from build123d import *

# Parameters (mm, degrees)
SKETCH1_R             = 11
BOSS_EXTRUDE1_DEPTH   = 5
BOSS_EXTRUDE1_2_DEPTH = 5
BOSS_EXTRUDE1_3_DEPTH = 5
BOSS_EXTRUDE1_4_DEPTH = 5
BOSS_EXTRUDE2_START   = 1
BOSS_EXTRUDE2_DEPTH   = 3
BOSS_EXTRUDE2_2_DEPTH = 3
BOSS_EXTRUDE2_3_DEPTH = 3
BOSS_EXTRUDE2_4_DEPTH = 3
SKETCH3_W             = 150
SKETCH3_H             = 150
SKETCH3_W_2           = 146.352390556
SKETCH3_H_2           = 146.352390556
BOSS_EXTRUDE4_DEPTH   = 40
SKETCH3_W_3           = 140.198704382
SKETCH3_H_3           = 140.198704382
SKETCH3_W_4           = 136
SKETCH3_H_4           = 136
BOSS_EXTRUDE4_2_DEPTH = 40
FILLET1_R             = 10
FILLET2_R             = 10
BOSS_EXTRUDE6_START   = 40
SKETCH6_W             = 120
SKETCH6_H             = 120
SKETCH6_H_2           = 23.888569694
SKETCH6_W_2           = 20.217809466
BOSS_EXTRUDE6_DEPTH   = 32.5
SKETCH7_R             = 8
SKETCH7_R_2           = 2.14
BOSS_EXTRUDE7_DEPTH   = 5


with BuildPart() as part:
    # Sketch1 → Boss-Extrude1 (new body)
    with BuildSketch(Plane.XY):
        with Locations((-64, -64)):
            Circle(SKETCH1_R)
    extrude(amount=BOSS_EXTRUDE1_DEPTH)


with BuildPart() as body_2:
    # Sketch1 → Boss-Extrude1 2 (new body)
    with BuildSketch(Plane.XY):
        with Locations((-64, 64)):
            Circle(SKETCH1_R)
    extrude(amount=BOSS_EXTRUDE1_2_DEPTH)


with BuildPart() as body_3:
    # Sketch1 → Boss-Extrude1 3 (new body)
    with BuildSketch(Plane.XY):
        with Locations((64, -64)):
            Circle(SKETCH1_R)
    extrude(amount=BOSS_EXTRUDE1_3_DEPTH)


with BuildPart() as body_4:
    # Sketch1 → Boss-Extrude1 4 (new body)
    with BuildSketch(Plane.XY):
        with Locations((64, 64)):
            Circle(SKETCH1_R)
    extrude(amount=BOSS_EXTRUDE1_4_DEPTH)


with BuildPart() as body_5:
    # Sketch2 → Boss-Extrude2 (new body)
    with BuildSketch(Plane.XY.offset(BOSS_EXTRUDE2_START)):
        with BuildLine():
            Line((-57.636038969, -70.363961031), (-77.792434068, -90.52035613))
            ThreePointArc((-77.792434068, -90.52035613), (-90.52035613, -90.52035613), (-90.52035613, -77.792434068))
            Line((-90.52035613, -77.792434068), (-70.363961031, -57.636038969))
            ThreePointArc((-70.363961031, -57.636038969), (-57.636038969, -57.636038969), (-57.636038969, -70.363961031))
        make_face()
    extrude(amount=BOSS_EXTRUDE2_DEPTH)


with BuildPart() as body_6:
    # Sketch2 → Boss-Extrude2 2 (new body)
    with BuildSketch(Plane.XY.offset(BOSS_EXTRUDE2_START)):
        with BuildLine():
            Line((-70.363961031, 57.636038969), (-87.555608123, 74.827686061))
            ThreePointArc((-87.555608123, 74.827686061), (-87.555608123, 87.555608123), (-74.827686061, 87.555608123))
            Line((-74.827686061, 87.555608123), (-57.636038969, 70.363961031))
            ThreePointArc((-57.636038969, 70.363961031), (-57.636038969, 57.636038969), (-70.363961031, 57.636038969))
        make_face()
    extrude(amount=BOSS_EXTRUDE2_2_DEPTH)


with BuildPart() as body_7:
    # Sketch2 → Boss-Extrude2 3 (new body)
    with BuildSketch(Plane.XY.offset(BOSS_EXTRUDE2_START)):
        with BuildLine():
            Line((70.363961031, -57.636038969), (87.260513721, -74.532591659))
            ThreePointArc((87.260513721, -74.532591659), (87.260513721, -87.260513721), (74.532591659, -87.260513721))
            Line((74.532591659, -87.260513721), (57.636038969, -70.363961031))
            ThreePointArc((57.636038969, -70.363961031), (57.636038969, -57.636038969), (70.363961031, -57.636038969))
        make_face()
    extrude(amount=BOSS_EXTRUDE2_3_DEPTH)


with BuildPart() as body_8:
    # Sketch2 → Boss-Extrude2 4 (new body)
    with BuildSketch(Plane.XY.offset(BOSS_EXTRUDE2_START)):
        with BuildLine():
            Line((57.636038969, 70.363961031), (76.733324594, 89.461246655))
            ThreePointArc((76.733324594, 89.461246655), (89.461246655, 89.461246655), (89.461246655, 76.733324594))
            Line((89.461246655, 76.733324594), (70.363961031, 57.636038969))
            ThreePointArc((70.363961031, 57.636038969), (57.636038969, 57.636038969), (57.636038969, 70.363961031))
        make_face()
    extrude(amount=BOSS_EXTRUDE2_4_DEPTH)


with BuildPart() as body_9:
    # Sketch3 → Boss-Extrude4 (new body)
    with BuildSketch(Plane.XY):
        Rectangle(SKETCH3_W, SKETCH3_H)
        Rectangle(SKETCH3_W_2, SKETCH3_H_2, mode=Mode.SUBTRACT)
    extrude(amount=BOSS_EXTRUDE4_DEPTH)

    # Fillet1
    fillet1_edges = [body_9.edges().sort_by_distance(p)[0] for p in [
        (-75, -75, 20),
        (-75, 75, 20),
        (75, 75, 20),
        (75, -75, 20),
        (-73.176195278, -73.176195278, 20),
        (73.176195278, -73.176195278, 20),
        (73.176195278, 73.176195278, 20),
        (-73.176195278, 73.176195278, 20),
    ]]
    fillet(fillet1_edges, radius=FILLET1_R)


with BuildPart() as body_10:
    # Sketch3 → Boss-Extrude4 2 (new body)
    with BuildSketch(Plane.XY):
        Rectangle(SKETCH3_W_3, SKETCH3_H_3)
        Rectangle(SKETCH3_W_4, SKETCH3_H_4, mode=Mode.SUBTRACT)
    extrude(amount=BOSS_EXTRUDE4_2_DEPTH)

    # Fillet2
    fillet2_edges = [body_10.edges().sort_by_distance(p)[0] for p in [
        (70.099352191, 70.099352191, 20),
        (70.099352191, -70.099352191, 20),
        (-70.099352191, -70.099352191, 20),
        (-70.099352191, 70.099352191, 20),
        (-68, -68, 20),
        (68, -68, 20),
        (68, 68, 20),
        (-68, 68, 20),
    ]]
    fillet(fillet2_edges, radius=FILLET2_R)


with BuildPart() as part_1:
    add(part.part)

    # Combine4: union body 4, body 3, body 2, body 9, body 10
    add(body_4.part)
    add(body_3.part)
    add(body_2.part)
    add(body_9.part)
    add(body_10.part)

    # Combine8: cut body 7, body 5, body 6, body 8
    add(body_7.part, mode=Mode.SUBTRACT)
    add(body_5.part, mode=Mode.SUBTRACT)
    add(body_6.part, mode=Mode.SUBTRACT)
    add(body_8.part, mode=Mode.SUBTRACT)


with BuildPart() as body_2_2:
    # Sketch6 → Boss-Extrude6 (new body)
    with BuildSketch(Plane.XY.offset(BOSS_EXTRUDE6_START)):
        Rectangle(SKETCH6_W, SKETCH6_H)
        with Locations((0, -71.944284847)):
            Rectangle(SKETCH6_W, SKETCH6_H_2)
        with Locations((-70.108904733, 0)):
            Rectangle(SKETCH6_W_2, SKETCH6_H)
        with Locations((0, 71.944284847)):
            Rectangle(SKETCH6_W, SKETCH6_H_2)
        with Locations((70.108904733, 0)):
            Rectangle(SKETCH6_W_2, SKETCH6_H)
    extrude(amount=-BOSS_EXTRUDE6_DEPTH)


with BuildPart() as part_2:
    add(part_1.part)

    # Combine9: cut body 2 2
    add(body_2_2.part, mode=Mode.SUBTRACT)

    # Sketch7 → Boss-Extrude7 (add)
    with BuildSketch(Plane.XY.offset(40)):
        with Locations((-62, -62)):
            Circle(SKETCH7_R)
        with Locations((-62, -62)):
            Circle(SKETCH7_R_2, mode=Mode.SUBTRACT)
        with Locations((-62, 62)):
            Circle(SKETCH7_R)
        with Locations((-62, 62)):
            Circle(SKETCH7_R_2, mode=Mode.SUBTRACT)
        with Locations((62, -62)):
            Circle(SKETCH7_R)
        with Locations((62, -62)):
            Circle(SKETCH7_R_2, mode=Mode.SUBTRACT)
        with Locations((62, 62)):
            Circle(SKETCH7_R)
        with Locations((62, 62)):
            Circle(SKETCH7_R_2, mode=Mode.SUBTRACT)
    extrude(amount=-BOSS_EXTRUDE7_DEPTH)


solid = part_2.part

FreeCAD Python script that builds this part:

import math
import FreeCAD as App
import Part
import Sketcher
from FreeCAD import Vector
Q = App.Units.Quantity


def edges_at(feature, points):
    """Names of the edges that pass closest to the given points."""
    edges = feature.Shape.Edges
    near = lambda p: min(range(len(edges)), key=lambda i: edges[i].distToShape(Part.Vertex(*p))[0])
    return sorted({f"Edge{near(p) + 1}" for p in points})


def add_polygon(sketch, points):
    """Adds a closed chain of lines whose ends are joined by coincident constraints."""
    first, n = sketch.GeometryCount, len(points)
    for a, b in zip(points, points[1:] + points[:1]):
        sketch.addGeometry(Part.LineSegment(App.Vector(*a, 0), App.Vector(*b, 0)), False)
    for i in range(n):
        sketch.addConstraint(Sketcher.Constraint("Coincident", first + i, 2, first + (i + 1) % n, 1))

doc = App.newDocument("Part")
body = doc.addObject("PartDesign::Body", "Body")

sketch1 = doc.addObject("Sketcher::SketchObject", "Sketch")
body.addObject(sketch1)
sketch1.AttachmentSupport = (doc.XY_Plane, [""])
sketch1.MapMode = "FlatFace"
sketch1.addGeometry(Part.Circle(Vector(-64, -64, 0), Vector(0, 0, 1), 11), False)
sketch1.addConstraint(Sketcher.Constraint("Diameter", 0, 22.0))
sketch1.addConstraint(Sketcher.Constraint("DistanceX", 0, 3, -1, 1, 64.0))
sketch1.addConstraint(Sketcher.Constraint("DistanceY", 0, 3, -1, 1, 64.0))
pad1 = doc.addObject("PartDesign::Pad", "Pad")
body.addObject(pad1)
pad1.Profile = sketch1
pad1.Length = 5
body2 = doc.addObject("PartDesign::Body", "Body001")

sketch2 = doc.addObject("Sketcher::SketchObject", "Sketch001")
body2.addObject(sketch2)
sketch2.AttachmentSupport = (doc.getObject("XY_Plane001"), [""])
sketch2.MapMode = "FlatFace"
sketch2.addGeometry(Part.Circle(Vector(-64, 64, 0), Vector(0, 0, 1), 11), False)
sketch2.addConstraint(Sketcher.Constraint("Diameter", 0, 22.0))
sketch2.addConstraint(Sketcher.Constraint("DistanceX", 0, 3, -1, 1, 64.0))
sketch2.addConstraint(Sketcher.Constraint("DistanceY", -1, 1, 0, 3, 64.0))
pad2 = doc.addObject("PartDesign::Pad", "Pad001")
body2.addObject(pad2)
pad2.Profile = sketch2
pad2.Length = 5
body3 = doc.addObject("PartDesign::Body", "Body002")

sketch3 = doc.addObject("Sketcher::SketchObject", "Sketch002")
body3.addObject(sketch3)
sketch3.AttachmentSupport = (doc.getObject("XY_Plane002"), [""])
sketch3.MapMode = "FlatFace"
sketch3.addGeometry(Part.Circle(Vector(64, -64, 0), Vector(0, 0, 1), 11), False)
sketch3.addConstraint(Sketcher.Constraint("Diameter", 0, 22.0))
sketch3.addConstraint(Sketcher.Constraint("DistanceX", -1, 1, 0, 3, 64.0))
sketch3.addConstraint(Sketcher.Constraint("DistanceY", 0, 3, -1, 1, 64.0))
pad3 = doc.addObject("PartDesign::Pad", "Pad002")
body3.addObject(pad3)
pad3.Profile = sketch3
pad3.Length = 5
body4 = doc.addObject("PartDesign::Body", "Body003")

sketch4 = doc.addObject("Sketcher::SketchObject", "Sketch003")
body4.addObject(sketch4)
sketch4.AttachmentSupport = (doc.getObject("XY_Plane003"), [""])
sketch4.MapMode = "FlatFace"
sketch4.addGeometry(Part.Circle(Vector(64, 64, 0), Vector(0, 0, 1), 11), False)
sketch4.addConstraint(Sketcher.Constraint("Diameter", 0, 22.0))
sketch4.addConstraint(Sketcher.Constraint("DistanceX", -1, 1, 0, 3, 64.0))
sketch4.addConstraint(Sketcher.Constraint("DistanceY", -1, 1, 0, 3, 64.0))
pad4 = doc.addObject("PartDesign::Pad", "Pad003")
body4.addObject(pad4)
pad4.Profile = sketch4
pad4.Length = 5
body5 = doc.addObject("PartDesign::Body", "Body004")

sketch5 = doc.addObject("Sketcher::SketchObject", "Sketch004")
body5.addObject(sketch5)
sketch5.AttachmentSupport = (doc.getObject("XY_Plane004"), [""])
sketch5.MapMode = "FlatFace"
sketch5.AttachmentOffset = App.Placement(Vector(0, 0, 1), App.Rotation())
sketch5.addGeometry(Part.LineSegment(Vector(-77.792434, -90.520356, 0), Vector(-57.636039, -70.363961, 0)), False)
sketch5.addGeometry(Part.ArcOfCircle(Part.Circle(Vector(-64, -64, 0), Vector(0, 0, 1), 9), math.radians(-45), math.radians(135)), False)
sketch5.addGeometry(Part.LineSegment(Vector(-70.363961, -57.636039, 0), Vector(-90.520356, -77.792434, 0)), False)
sketch5.addGeometry(Part.ArcOfCircle(Part.Circle(Vector(-84.156395, -84.156395, 0), Vector(0, 0, 1), 9), math.radians(135), math.radians(315)), False)
sketch5.addConstraint(Sketcher.Constraint("Tangent", 0, 2, 1, 1))
sketch5.addConstraint(Sketcher.Constraint("Tangent", 1, 2, 2, 1))
sketch5.addConstraint(Sketcher.Constraint("Tangent", 2, 2, 3, 1))
sketch5.addConstraint(Sketcher.Constraint("Tangent", 3, 2, 0, 1))
sketch5.addConstraint(Sketcher.Constraint("Equal", 1, 3))
sketch5.addConstraint(Sketcher.Constraint("Radius", 1, 9.0))
sketch5.addConstraint(Sketcher.Constraint("Angle", 0, Q("45 deg")))
sketch5.addConstraint(Sketcher.Constraint("DistanceX", 1, 3, -1, 1, 64.0))
sketch5.addConstraint(Sketcher.Constraint("DistanceY", 1, 3, -1, 1, 64.0))
sketch5.addConstraint(Sketcher.Constraint("Distance", 0, 28.505447))
pad5 = doc.addObject("PartDesign::Pad", "Pad004")
body5.addObject(pad5)
pad5.Profile = sketch5
pad5.Length = 3
body6 = doc.addObject("PartDesign::Body", "Body005")

sketch6 = doc.addObject("Sketcher::SketchObject", "Sketch005")
body6.addObject(sketch6)
sketch6.AttachmentSupport = (doc.getObject("XY_Plane005"), [""])
sketch6.MapMode = "FlatFace"
sketch6.AttachmentOffset = App.Placement(Vector(0, 0, 1), App.Rotation())
sketch6.addGeometry(Part.LineSegment(Vector(-87.555608, 74.827686, 0), Vector(-70.363961, 57.636039, 0)), False)
sketch6.addGeometry(Part.ArcOfCircle(Part.Circle(Vector(-64, 64, 0), Vector(0, 0, 1), 9), math.radians(-135), math.radians(45)), False)
sketch6.addGeometry(Part.LineSegment(Vector(-57.636039, 70.363961, 0), Vector(-74.827686, 87.555608, 0)), False)
sketch6.addGeometry(Part.ArcOfCircle(Part.Circle(Vector(-81.191647, 81.191647, 0), Vector(0, 0, 1), 9), math.radians(45), math.radians(225)), False)
sketch6.addConstraint(Sketcher.Constraint("Tangent", 0, 2, 1, 1))
sketch6.addConstraint(Sketcher.Constraint("Tangent", 1, 2, 2, 1))
sketch6.addConstraint(Sketcher.Constraint("Tangent", 2, 2, 3, 1))
sketch6.addConstraint(Sketcher.Constraint("Tangent", 3, 2, 0, 1))
sketch6.addConstraint(Sketcher.Constraint("Equal", 1, 3))
sketch6.addConstraint(Sketcher.Constraint("Radius", 1, 9.0))
sketch6.addConstraint(Sketcher.Constraint("Angle", 0, Q("-45 deg")))
sketch6.addConstraint(Sketcher.Constraint("DistanceX", 1, 3, -1, 1, 64.0))
sketch6.addConstraint(Sketcher.Constraint("DistanceY", -1, 1, 1, 3, 64.0))
sketch6.addConstraint(Sketcher.Constraint("Distance", 0, 24.31266))
pad6 = doc.addObject("PartDesign::Pad", "Pad005")
body6.addObject(pad6)
pad6.Profile = sketch6
pad6.Length = 3
body7 = doc.addObject("PartDesign::Body", "Body006")

sketch7 = doc.addObject("Sketcher::SketchObject", "Sketch006")
body7.addObject(sketch7)
sketch7.AttachmentSupport = (doc.getObject("XY_Plane006"), [""])
sketch7.MapMode = "FlatFace"
sketch7.AttachmentOffset = App.Placement(Vector(0, 0, 1), App.Rotation())
sketch7.addGeometry(Part.LineSegment(Vector(87.260514, -74.532592, 0), Vector(70.363961, -57.636039, 0)), False)
sketch7.addGeometry(Part.ArcOfCircle(Part.Circle(Vector(64, -64, 0), Vector(0, 0, 1), 9), math.radians(45), math.radians(225)), False)
sketch7.addGeometry(Part.LineSegment(Vector(57.636039, -70.363961, 0), Vector(74.532592, -87.260514, 0)), False)
sketch7.addGeometry(Part.ArcOfCircle(Part.Circle(Vector(80.896553, -80.896553, 0), Vector(0, 0, 1), 9), math.radians(-135), math.radians(45)), False)
sketch7.addConstraint(Sketcher.Constraint("Tangent", 0, 2, 1, 1))
sketch7.addConstraint(Sketcher.Constraint("Tangent", 1, 2, 2, 1))
sketch7.addConstraint(Sketcher.Constraint("Tangent", 2, 2, 3, 1))
sketch7.addConstraint(Sketcher.Constraint("Tangent", 3, 2, 0, 1))
sketch7.addConstraint(Sketcher.Constraint("Equal", 1, 3))
sketch7.addConstraint(Sketcher.Constraint("Radius", 1, 9.0))
sketch7.addConstraint(Sketcher.Constraint("Angle", 0, Q("135 deg")))
sketch7.addConstraint(Sketcher.Constraint("DistanceX", -1, 1, 1, 3, 64.0))
sketch7.addConstraint(Sketcher.Constraint("DistanceY", 1, 3, -1, 1, 64.0))
sketch7.addConstraint(Sketcher.Constraint("DistanceX", -1, 1, 2, 2, 74.532592))
pad7 = doc.addObject("PartDesign::Pad", "Pad006")
body7.addObject(pad7)
pad7.Profile = sketch7
pad7.Length = 3
body8 = doc.addObject("PartDesign::Body", "Body007")

sketch8 = doc.addObject("Sketcher::SketchObject", "Sketch007")
body8.addObject(sketch8)
sketch8.AttachmentSupport = (doc.getObject("XY_Plane007"), [""])
sketch8.MapMode = "FlatFace"
sketch8.AttachmentOffset = App.Placement(Vector(0, 0, 1), App.Rotation())
sketch8.addGeometry(Part.LineSegment(Vector(76.733325, 89.461247, 0), Vector(57.636039, 70.363961, 0)), False)
sketch8.addGeometry(Part.ArcOfCircle(Part.Circle(Vector(64, 64, 0), Vector(0, 0, 1), 9), math.radians(135), math.radians(315)), False)
sketch8.addGeometry(Part.LineSegment(Vector(70.363961, 57.636039, 0), Vector(89.461247, 76.733325, 0)), False)
sketch8.addGeometry(Part.ArcOfCircle(Part.Circle(Vector(83.097286, 83.097286, 0), Vector(0, 0, 1), 9), math.radians(-45), math.radians(135)), False)
sketch8.addConstraint(Sketcher.Constraint("Tangent", 0, 2, 1, 1))
sketch8.addConstraint(Sketcher.Constraint("Tangent", 1, 2, 2, 1))
sketch8.addConstraint(Sketcher.Constraint("Tangent", 2, 2, 3, 1))
sketch8.addConstraint(Sketcher.Constraint("Tangent", 3, 2, 0, 1))
sketch8.addConstraint(Sketcher.Constraint("Equal", 1, 3))
sketch8.addConstraint(Sketcher.Constraint("Radius", 1, 9.0))
sketch8.addConstraint(Sketcher.Constraint("Angle", 0, Q("-135 deg")))
sketch8.addConstraint(Sketcher.Constraint("DistanceX", -1, 1, 1, 3, 64.0))
sketch8.addConstraint(Sketcher.Constraint("DistanceY", -1, 1, 1, 3, 64.0))
sketch8.addConstraint(Sketcher.Constraint("Distance", 0, 27.00764))
pad8 = doc.addObject("PartDesign::Pad", "Pad007")
body8.addObject(pad8)
pad8.Profile = sketch8
pad8.Length = 3
body9 = doc.addObject("PartDesign::Body", "Body008")

sketch9 = doc.addObject("Sketcher::SketchObject", "Sketch008")
body9.addObject(sketch9)
sketch9.AttachmentSupport = (doc.getObject("XY_Plane008"), [""])
sketch9.MapMode = "FlatFace"
add_polygon(sketch9, [(-75, 75), (-75, -75), (75, -75), (75, 75)])
add_polygon(sketch9, [(73.176195, -73.176195), (-73.176195, -73.176195), (-73.176195, 73.176195), (73.176195, 73.176195)])
sketch9.addConstraint(Sketcher.Constraint("Vertical", 0))
sketch9.addConstraint(Sketcher.Constraint("Horizontal", 1))
sketch9.addConstraint(Sketcher.Constraint("Vertical", 2))
sketch9.addConstraint(Sketcher.Constraint("Horizontal", 3))
sketch9.addConstraint(Sketcher.Constraint("Horizontal", 4))
sketch9.addConstraint(Sketcher.Constraint("Vertical", 5))
sketch9.addConstraint(Sketcher.Constraint("Horizontal", 6))
sketch9.addConstraint(Sketcher.Constraint("Vertical", 7))
sketch9.addConstraint(Sketcher.Constraint("Symmetric", 0, 2, 2, 2, -1, 1))
sketch9.addConstraint(Sketcher.Constraint("Symmetric", 4, 2, 6, 2, -1, 1))
sketch9.addConstraint(Sketcher.Constraint("Equal", 3, 0))
sketch9.addConstraint(Sketcher.Constraint("Equal", 6, 5))
sketch9.addConstraint(Sketcher.Constraint("DistanceX", 1, 1, 1, 2, 150.0))
sketch9.addConstraint(Sketcher.Constraint("DistanceX", 4, 2, 4, 1, 146.352391))
pad9 = doc.addObject("PartDesign::Pad", "Pad008")
body9.addObject(pad9)
pad9.Profile = sketch9
pad9.Length = 40
doc.recompute()

fillet = doc.addObject("PartDesign::Fillet", "Fillet")
body9.addObject(fillet)
fillet.Base = (pad9, edges_at(pad9, [
    (-75, -75, 20),
    (-75, 75, 20),
    (75, 75, 20),
    (75, -75, 20),
    (-73.176, -73.176, 20),
    (73.176, -73.176, 20),
    (73.176, 73.176, 20),
    (-73.176, 73.176, 20),
]))
fillet.Radius = 10
body10 = doc.addObject("PartDesign::Body", "Body009")

sketch10 = doc.addObject("Sketcher::SketchObject", "Sketch009")
body10.addObject(sketch10)
sketch10.AttachmentSupport = (doc.getObject("XY_Plane009"), [""])
sketch10.MapMode = "FlatFace"
add_polygon(sketch10, [(-70.099352, 70.099352), (-70.099352, -70.099352), (70.099352, -70.099352), (70.099352, 70.099352)])
add_polygon(sketch10, [(68, -68), (-68, -68), (-68, 68), (68, 68)])
sketch10.addConstraint(Sketcher.Constraint("Vertical", 0))
sketch10.addConstraint(Sketcher.Constraint("Horizontal", 1))
sketch10.addConstraint(Sketcher.Constraint("Vertical", 2))
sketch10.addConstraint(Sketcher.Constraint("Horizontal", 3))
sketch10.addConstraint(Sketcher.Constraint("Horizontal", 4))
sketch10.addConstraint(Sketcher.Constraint("Vertical", 5))
sketch10.addConstraint(Sketcher.Constraint("Horizontal", 6))
sketch10.addConstraint(Sketcher.Constraint("Vertical", 7))
sketch10.addConstraint(Sketcher.Constraint("Symmetric", 0, 2, 2, 2, -1, 1))
sketch10.addConstraint(Sketcher.Constraint("Symmetric", 4, 2, 6, 2, -1, 1))
sketch10.addConstraint(Sketcher.Constraint("Equal", 3, 0))
sketch10.addConstraint(Sketcher.Constraint("Equal", 6, 5))
sketch10.addConstraint(Sketcher.Constraint("DistanceX", 4, 2, 4, 1, 136.0))
sketch10.addConstraint(Sketcher.Constraint("DistanceX", 1, 1, 1, 2, 140.198704))
pad10 = doc.addObject("PartDesign::Pad", "Pad009")
body10.addObject(pad10)
pad10.Profile = sketch10
pad10.Length = 40
doc.recompute()

fillet2 = doc.addObject("PartDesign::Fillet", "Fillet001")
body10.addObject(fillet2)
fillet2.Base = (pad10, edges_at(pad10, [
    (70.099, 70.099, 20),
    (70.099, -70.099, 20),
    (-70.099, -70.099, 20),
    (-70.099, 70.099, 20),
    (-68, -68, 20),
    (68, -68, 20),
    (68, 68, 20),
    (-68, 68, 20),
]))
fillet2.Radius = 10
body.AllowCompound = True
doc.recompute()

boolean = doc.addObject("PartDesign::Boolean", "Boolean")
body.addObject(boolean)
boolean.Type = "Fuse"
boolean.addObjects([body4])
doc.recompute()

boolean2 = doc.addObject("PartDesign::Boolean", "Boolean001")
body.addObject(boolean2)
boolean2.Type = "Fuse"
boolean2.addObjects([body3])
doc.recompute()

boolean3 = doc.addObject("PartDesign::Boolean", "Boolean002")
body.addObject(boolean3)
boolean3.Type = "Fuse"
boolean3.addObjects([body2])
doc.recompute()

boolean4 = doc.addObject("PartDesign::Boolean", "Boolean003")
body.addObject(boolean4)
boolean4.Type = "Fuse"
boolean4.addObjects([body9])
doc.recompute()

boolean5 = doc.addObject("PartDesign::Boolean", "Boolean004")
body.addObject(boolean5)
boolean5.Type = "Fuse"
boolean5.addObjects([body10])
doc.recompute()

boolean6 = doc.addObject("PartDesign::Boolean", "Boolean005")
body.addObject(boolean6)
boolean6.Type = "Cut"
boolean6.addObjects([body7])
doc.recompute()

boolean7 = doc.addObject("PartDesign::Boolean", "Boolean006")
body.addObject(boolean7)
boolean7.Type = "Cut"
boolean7.addObjects([body5])
doc.recompute()

boolean8 = doc.addObject("PartDesign::Boolean", "Boolean007")
body.addObject(boolean8)
boolean8.Type = "Cut"
boolean8.addObjects([body6])
doc.recompute()

boolean9 = doc.addObject("PartDesign::Boolean", "Boolean008")
body.addObject(boolean9)
boolean9.Type = "Cut"
boolean9.addObjects([body8])
body11 = doc.addObject("PartDesign::Body", "Body010")

sketch11 = doc.addObject("Sketcher::SketchObject", "Sketch010")
body11.addObject(sketch11)
sketch11.AttachmentSupport = (doc.getObject("XY_Plane010"), [""])
sketch11.MapMode = "FlatFace"
sketch11.AttachmentOffset = App.Placement(Vector(0, 0, 40), App.Rotation())
add_polygon(sketch11, [(-60, -60), (-60, -83.88857), (60, -83.88857), (60, -60), (80.217809, -60), (80.217809, 60), (60, 60), (60, 83.88857), (-60, 83.88857), (-60, 60), (-80.217809, 60), (-80.217809, -60)])
sketch11.addConstraint(Sketcher.Constraint("Vertical", 0))
sketch11.addConstraint(Sketcher.Constraint("Horizontal", 1))
sketch11.addConstraint(Sketcher.Constraint("Vertical", 2))
sketch11.addConstraint(Sketcher.Constraint("Horizontal", 3))
sketch11.addConstraint(Sketcher.Constraint("Vertical", 4))
sketch11.addConstraint(Sketcher.Constraint("Horizontal", 5))
sketch11.addConstraint(Sketcher.Constraint("Vertical", 6))
sketch11.addConstraint(Sketcher.Constraint("Horizontal", 7))
sketch11.addConstraint(Sketcher.Constraint("Vertical", 8))
sketch11.addConstraint(Sketcher.Constraint("Horizontal", 9))
sketch11.addConstraint(Sketcher.Constraint("Vertical", 10))
sketch11.addConstraint(Sketcher.Constraint("Horizontal", 11))
sketch11.addConstraint(Sketcher.Constraint("Symmetric", 0, 2, 6, 2, -1, 1))
sketch11.addConstraint(Sketcher.Constraint("Symmetric", 2, 2, 8, 2, -1, 1))
sketch11.addConstraint(Sketcher.Constraint("Symmetric", 4, 2, 10, 2, -1, 1))
sketch11.addConstraint(Sketcher.Constraint("Symmetric", 5, 2, 8, 2, -2))
sketch11.addConstraint(Sketcher.Constraint("Equal", 7, 4))
sketch11.addConstraint(Sketcher.Constraint("DistanceX", 1, 1, 1, 2, 120.0))
sketch11.addConstraint(Sketcher.Constraint("DistanceX", 3, 1, 3, 2, 20.217809))
sketch11.addConstraint(Sketcher.Constraint("DistanceY", 0, 2, 0, 1, 23.88857))
pad11 = doc.addObject("PartDesign::Pad", "Pad010")
body11.addObject(pad11)
pad11.Profile = sketch11
pad11.Length = 32.5
pad11.Reversed = True
doc.recompute()

boolean10 = doc.addObject("PartDesign::Boolean", "Boolean009")
body.addObject(boolean10)
boolean10.Type = "Cut"
boolean10.addObjects([body11])

sketch12 = doc.addObject("Sketcher::SketchObject", "Sketch011")
body.addObject(sketch12)
sketch12.AttachmentSupport = (doc.XY_Plane, [""])
sketch12.MapMode = "FlatFace"
sketch12.AttachmentOffset = App.Placement(Vector(0, 0, 40), App.Rotation())
sketch12.addGeometry(Part.Circle(Vector(-62, -62, 0), Vector(0, 0, 1), 8), False)
sketch12.addGeometry(Part.Circle(Vector(-62, -62, 0), Vector(0, 0, 1), 2.14), False)
sketch12.addGeometry(Part.Circle(Vector(-62, 62, 0), Vector(0, 0, 1), 8), False)
sketch12.addGeometry(Part.Circle(Vector(-62, 62, 0), Vector(0, 0, 1), 2.14), False)
sketch12.addGeometry(Part.Circle(Vector(62, -62, 0), Vector(0, 0, 1), 8), False)
sketch12.addGeometry(Part.Circle(Vector(62, -62, 0), Vector(0, 0, 1), 2.14), False)
sketch12.addGeometry(Part.Circle(Vector(62, 62, 0), Vector(0, 0, 1), 8), False)
sketch12.addGeometry(Part.Circle(Vector(62, 62, 0), Vector(0, 0, 1), 2.14), False)
sketch12.addConstraint(Sketcher.Constraint("Coincident", 1, 3, 0, 3))
sketch12.addConstraint(Sketcher.Constraint("Coincident", 3, 3, 2, 3))
sketch12.addConstraint(Sketcher.Constraint("Coincident", 5, 3, 4, 3))
sketch12.addConstraint(Sketcher.Constraint("Coincident", 7, 3, 6, 3))
sketch12.addConstraint(Sketcher.Constraint("Equal", 0, 2))
sketch12.addConstraint(Sketcher.Constraint("Equal", 1, 3))
sketch12.addConstraint(Sketcher.Constraint("Equal", 2, 4))
sketch12.addConstraint(Sketcher.Constraint("Equal", 3, 5))
sketch12.addConstraint(Sketcher.Constraint("Equal", 4, 6))
sketch12.addConstraint(Sketcher.Constraint("Equal", 5, 7))
sketch12.addConstraint(Sketcher.Constraint("Symmetric", 2, 3, 4, 3, -1, 1))
sketch12.addConstraint(Sketcher.Constraint("Symmetric", 0, 3, 6, 3, -1, 1))
sketch12.addConstraint(Sketcher.Constraint("Symmetric", 0, 3, 4, 3, -2))
sketch12.addConstraint(Sketcher.Constraint("Diameter", 0, 16.0))
sketch12.addConstraint(Sketcher.Constraint("Diameter", 1, 4.28))
sketch12.addConstraint(Sketcher.Constraint("DistanceX", 0, 3, -1, 1, 62.0))
sketch12.addConstraint(Sketcher.Constraint("DistanceY", 0, 3, -1, 1, 62.0))
pad12 = doc.addObject("PartDesign::Pad", "Pad011")
body.addObject(pad12)
pad12.Profile = sketch12
pad12.Length = 5
pad12.Reversed = True

doc.recompute()
